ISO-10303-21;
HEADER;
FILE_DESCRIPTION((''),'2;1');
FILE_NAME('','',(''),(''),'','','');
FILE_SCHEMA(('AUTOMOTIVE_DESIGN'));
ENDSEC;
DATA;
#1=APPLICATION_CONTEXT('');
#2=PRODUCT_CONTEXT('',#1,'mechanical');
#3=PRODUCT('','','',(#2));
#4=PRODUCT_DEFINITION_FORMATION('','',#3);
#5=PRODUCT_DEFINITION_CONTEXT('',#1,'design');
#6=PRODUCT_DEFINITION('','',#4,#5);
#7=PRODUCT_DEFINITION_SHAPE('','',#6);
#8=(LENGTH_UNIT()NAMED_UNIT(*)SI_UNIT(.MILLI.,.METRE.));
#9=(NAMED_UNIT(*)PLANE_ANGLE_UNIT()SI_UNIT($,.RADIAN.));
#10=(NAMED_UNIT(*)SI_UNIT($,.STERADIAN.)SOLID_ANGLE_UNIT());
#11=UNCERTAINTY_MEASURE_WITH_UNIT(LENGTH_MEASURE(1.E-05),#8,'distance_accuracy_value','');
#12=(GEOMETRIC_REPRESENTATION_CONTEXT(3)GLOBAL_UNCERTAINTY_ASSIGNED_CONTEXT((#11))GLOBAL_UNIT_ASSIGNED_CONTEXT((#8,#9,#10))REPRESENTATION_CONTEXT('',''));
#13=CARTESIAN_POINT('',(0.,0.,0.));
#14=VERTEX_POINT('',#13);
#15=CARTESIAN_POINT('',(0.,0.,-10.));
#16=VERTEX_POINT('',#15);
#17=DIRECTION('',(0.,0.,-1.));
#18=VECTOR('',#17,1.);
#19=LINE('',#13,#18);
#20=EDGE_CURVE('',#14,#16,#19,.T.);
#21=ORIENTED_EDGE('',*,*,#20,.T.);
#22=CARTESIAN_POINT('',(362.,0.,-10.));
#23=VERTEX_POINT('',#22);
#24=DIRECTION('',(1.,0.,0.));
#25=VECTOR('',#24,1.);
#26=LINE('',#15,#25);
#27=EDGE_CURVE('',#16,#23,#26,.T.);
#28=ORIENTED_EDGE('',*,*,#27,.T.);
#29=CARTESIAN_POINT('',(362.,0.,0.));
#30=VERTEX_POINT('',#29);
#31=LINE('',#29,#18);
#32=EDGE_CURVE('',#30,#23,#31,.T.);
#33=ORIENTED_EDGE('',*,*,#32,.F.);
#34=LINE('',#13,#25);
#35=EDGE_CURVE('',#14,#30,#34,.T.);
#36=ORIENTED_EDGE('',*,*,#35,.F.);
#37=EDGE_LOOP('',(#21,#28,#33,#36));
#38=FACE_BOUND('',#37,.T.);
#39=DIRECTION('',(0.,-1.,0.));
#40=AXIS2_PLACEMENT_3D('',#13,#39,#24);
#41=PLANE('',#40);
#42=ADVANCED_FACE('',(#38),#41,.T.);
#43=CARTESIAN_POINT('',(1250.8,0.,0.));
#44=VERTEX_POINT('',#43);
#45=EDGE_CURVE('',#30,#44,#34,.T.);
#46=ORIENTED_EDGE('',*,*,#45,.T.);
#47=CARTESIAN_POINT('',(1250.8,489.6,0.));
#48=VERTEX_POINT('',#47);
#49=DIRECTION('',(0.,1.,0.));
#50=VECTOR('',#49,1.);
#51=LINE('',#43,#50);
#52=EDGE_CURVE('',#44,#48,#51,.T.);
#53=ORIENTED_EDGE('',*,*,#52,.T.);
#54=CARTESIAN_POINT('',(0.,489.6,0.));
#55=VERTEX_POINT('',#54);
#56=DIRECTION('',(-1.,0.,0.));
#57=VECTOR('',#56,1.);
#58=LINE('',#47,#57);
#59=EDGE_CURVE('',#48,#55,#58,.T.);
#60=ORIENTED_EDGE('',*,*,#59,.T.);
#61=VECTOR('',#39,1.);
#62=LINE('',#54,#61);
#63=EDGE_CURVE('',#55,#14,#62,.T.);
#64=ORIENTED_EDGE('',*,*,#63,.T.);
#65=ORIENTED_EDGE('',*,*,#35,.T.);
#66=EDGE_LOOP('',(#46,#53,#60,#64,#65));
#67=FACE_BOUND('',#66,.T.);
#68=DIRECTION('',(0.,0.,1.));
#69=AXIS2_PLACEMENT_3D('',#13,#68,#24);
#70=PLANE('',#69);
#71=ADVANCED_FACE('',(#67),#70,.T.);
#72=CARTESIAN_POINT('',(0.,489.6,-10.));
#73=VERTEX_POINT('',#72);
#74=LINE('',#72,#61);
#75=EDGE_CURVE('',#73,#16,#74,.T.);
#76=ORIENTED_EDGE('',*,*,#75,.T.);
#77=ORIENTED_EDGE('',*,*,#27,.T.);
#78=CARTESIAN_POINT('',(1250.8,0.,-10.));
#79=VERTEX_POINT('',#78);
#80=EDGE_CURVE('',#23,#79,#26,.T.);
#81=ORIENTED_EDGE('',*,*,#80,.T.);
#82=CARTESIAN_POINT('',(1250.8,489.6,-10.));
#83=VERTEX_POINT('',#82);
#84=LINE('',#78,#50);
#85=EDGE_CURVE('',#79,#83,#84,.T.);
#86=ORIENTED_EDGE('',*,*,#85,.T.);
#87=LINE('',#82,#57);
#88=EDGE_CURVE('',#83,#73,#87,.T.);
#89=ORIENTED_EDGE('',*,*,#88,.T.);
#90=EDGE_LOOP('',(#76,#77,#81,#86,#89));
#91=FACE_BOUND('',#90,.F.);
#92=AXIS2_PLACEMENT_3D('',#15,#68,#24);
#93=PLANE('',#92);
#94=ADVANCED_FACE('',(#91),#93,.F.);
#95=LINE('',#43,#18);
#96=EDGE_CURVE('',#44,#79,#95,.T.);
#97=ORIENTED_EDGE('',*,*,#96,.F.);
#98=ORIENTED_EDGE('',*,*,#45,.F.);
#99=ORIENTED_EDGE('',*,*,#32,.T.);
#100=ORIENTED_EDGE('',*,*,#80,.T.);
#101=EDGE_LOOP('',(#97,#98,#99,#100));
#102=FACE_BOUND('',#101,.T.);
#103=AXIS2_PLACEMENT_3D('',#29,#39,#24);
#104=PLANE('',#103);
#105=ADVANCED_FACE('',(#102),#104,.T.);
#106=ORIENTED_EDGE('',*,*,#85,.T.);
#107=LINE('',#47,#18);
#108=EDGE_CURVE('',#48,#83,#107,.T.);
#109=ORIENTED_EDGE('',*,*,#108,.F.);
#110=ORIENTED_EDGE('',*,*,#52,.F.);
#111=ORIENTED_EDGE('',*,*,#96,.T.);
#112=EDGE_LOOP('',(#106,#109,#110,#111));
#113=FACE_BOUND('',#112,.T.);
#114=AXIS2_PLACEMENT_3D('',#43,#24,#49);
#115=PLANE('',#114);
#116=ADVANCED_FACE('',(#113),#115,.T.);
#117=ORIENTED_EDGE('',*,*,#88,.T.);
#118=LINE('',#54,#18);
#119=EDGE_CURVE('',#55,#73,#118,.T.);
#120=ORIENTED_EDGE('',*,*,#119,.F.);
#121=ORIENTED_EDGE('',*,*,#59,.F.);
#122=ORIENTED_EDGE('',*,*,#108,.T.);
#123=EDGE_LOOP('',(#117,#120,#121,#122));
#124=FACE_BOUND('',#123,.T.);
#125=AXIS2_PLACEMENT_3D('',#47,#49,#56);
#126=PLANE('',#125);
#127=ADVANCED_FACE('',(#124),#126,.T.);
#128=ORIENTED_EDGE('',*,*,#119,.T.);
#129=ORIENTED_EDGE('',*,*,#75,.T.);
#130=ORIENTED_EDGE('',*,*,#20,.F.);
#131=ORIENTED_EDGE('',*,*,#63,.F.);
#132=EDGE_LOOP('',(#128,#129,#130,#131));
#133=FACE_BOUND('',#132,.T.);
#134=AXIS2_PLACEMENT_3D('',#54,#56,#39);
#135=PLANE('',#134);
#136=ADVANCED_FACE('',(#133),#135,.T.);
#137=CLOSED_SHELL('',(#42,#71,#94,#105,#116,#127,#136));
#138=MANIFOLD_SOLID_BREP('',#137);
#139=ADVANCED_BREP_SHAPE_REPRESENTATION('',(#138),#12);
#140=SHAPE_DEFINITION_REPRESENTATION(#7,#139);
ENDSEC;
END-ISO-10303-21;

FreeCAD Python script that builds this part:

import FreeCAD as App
import Part
import Sketcher

V = App.Vector

doc = App.newDocument("Part")
body = doc.addObject("PartDesign::Body", "Body")

# Sketch on XY plane
sketch1 = body.newObject("Sketcher::SketchObject", "Sketch")
sketch1.AttachmentSupport = (doc.getObject("XY_Plane"), [""])
sketch1.MapMode = "FlatFace"
sketch1.addGeometry([
    Part.LineSegment(V(0, 0, 0), V(1251, 0, 0)),
    Part.LineSegment(V(1251, 0, 0), V(1251, 490, 0)),
    Part.LineSegment(V(1251, 490, 0), V(0, 490, 0)),
    Part.LineSegment(V(0, 490, 0), V(0, 0, 0)),
], False)
sketch1.addConstraint([
    Sketcher.Constraint("Coincident", 0, 2, 1, 1),
    Sketcher.Constraint("Coincident", 1, 2, 2, 1),
    Sketcher.Constraint("Coincident", 2, 2, 3, 1),
    Sketcher.Constraint("Coincident", 3, 2, 0, 1),
    Sketcher.Constraint("Horizontal", 0),
    Sketcher.Constraint("Vertical", 1),
    Sketcher.Constraint("Horizontal", 2),
    Sketcher.Constraint("Vertical", 3),
    Sketcher.Constraint("Coincident", 3, 2, -1, 1),
    Sketcher.Constraint("DistanceX", 0, 1, 0, 2, 1250.8),
    Sketcher.Constraint("DistanceY", 1, 1, 1, 2, 489.6),
])
pad1 = body.newObject("PartDesign::Pad", "Pad")
pad1.Profile = sketch1
pad1.Length = 10
pad1.Reversed = True

doc.recompute()
